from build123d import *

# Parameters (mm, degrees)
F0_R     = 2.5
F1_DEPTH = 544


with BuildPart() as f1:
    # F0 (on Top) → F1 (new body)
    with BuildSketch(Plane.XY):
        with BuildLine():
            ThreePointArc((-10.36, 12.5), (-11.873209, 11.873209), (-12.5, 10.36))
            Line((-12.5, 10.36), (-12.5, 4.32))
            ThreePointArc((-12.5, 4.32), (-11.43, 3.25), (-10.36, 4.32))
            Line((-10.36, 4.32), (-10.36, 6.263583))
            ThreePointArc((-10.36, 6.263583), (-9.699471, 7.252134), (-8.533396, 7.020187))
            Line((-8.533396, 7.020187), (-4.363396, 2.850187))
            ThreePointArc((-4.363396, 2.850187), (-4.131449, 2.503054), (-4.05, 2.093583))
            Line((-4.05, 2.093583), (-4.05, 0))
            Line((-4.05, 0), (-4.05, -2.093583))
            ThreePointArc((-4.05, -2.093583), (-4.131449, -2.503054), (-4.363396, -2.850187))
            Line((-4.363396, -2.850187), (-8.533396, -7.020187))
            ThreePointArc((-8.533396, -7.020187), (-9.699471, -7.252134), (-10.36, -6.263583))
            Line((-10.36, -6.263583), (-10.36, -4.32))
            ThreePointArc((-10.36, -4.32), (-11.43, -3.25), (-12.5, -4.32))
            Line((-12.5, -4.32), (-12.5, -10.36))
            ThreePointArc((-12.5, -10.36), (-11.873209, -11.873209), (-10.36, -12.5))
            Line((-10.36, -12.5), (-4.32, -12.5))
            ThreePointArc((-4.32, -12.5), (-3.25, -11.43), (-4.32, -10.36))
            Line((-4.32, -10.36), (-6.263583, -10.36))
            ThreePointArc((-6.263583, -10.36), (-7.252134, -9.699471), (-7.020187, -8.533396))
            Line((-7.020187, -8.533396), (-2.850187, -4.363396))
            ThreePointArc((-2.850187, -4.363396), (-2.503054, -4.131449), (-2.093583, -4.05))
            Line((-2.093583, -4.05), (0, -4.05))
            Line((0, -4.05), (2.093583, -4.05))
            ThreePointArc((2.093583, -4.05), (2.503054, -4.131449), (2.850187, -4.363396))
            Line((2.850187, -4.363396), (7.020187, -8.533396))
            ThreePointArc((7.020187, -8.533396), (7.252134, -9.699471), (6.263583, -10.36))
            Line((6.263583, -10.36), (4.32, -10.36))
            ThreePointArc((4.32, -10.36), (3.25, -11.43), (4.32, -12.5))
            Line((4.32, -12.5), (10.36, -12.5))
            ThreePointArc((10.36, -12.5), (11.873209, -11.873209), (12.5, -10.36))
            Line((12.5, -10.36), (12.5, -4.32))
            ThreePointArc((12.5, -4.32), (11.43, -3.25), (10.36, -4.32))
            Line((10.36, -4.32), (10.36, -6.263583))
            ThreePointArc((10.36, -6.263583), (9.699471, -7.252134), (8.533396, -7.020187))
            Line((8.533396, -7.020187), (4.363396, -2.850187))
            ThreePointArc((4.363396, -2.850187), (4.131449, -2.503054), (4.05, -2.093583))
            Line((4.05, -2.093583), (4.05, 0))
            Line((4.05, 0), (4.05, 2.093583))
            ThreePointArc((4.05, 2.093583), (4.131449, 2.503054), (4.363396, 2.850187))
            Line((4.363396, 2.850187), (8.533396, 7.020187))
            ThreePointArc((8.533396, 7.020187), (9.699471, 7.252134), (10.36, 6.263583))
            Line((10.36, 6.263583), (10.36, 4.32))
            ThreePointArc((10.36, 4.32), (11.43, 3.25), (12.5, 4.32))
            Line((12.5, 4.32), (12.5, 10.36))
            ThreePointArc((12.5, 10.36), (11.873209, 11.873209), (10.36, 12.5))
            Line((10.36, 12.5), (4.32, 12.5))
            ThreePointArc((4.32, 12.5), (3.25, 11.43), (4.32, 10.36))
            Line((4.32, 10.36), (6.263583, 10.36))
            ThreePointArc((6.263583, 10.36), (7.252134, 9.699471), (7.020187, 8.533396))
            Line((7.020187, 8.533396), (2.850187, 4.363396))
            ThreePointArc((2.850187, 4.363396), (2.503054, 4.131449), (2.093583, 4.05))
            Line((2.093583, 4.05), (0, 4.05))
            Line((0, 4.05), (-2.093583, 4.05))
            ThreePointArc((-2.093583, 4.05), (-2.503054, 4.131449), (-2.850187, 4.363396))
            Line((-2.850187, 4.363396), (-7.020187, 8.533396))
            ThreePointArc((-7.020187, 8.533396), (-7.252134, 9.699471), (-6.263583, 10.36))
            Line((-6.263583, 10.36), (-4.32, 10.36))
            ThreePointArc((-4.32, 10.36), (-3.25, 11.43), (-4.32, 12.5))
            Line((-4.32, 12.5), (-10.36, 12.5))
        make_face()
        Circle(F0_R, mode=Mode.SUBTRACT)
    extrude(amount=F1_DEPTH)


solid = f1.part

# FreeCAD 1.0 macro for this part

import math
import FreeCAD as App
import Part
import Sketcher
Q = App.Units.Quantity

doc = App.newDocument("Part")
params = doc.addObject("Spreadsheet::Sheet", "Params")
for row, (alias, value) in enumerate([
    ("sketch1_diameter", "5 mm"),
    ("sketch1_radius", "2.139998 mm"),
    ("sketch1_width", "6.04 mm"),
    ("pad1_length", "544 mm"),
], start=1):
    params.set(f"A{row}", alias)
    params.set(f"B{row}", "=" + value)
    params.setAlias(f"B{row}", alias)

body = doc.addObject("PartDesign::Body", "Body")

# Sketch on XY plane
sketch1 = body.newObject("Sketcher::SketchObject", "Sketch")
sketch1.AttachmentSupport = (doc.getObject("XY_Plane"), [""])
sketch1.MapMode = "FlatFace"
sketch1.addGeometry(Part.ArcOfCircle(Part.Circle(App.Vector(-10.4, 10.4, 0), App.Vector(0, 0, 1), 2.1), math.radians(90), math.radians(180)), False)
sketch1.addGeometry(Part.LineSegment(App.Vector(-12.5, 10.4, 0), App.Vector(-12.5, 4.3, 0)), False)
sketch1.addGeometry(Part.ArcOfCircle(Part.Circle(App.Vector(-11.4, 4.3, 0), App.Vector(0, 0, 1), 1.1), math.radians(180), math.radians(360)), False)
sketch1.addGeometry(Part.LineSegment(App.Vector(-10.4, 4.3, 0), App.Vector(-10.4, 6.3, 0)), False)
sketch1.addGeometry(Part.ArcOfCircle(Part.Circle(App.Vector(-9.3, 6.3, 0), App.Vector(0, 0, 1), 1.1), math.radians(45), math.radians(180)), False)
sketch1.addGeometry(Part.LineSegment(App.Vector(-8.5, 7, 0), App.Vector(-4.4, 2.9, 0)), False)
sketch1.addGeometry(Part.ArcOfCircle(Part.Circle(App.Vector(-5.1, 2.1, 0), App.Vector(0, 0, 1), 1.1), math.radians(0), math.radians(45)), False)
sketch1.addGeometry(Part.LineSegment(App.Vector(-4, 2.1, 0), App.Vector(-4, -2.1, 0)), False)
sketch1.addGeometry(Part.ArcOfCircle(Part.Circle(App.Vector(-5.1, -2.1, 0), App.Vector(0, 0, 1), 1.1), math.radians(-45), math.radians(0)), False)
sketch1.addGeometry(Part.LineSegment(App.Vector(-4.4, -2.9, 0), App.Vector(-8.5, -7, 0)), False)
sketch1.addGeometry(Part.ArcOfCircle(Part.Circle(App.Vector(-9.3, -6.3, 0), App.Vector(0, 0, 1), 1.1), math.radians(-180), math.radians(-45)), False)
sketch1.addGeometry(Part.LineSegment(App.Vector(-10.4, -6.3, 0), App.Vector(-10.4, -4.3, 0)), False)
sketch1.addGeometry(Part.ArcOfCircle(Part.Circle(App.Vector(-11.4, -4.3, 0), App.Vector(0, 0, 1), 1.1), math.radians(0), math.radians(180)), False)
sketch1.addGeometry(Part.LineSegment(App.Vector(-12.5, -4.3, 0), App.Vector(-12.5, -10.4, 0)), False)
sketch1.addGeometry(Part.ArcOfCircle(Part.Circle(App.Vector(-10.4, -10.4, 0), App.Vector(0, 0, 1), 2.1), math.radians(180), math.radians(270)), False)
sketch1.addGeometry(Part.LineSegment(App.Vector(-10.4, -12.5, 0), App.Vector(-4.3, -12.5, 0)), False)
sketch1.addGeometry(Part.ArcOfCircle(Part.Circle(App.Vector(-4.3, -11.4, 0), App.Vector(0, 0, 1), 1.1), math.radians(-90), math.radians(90)), False)
sketch1.addGeometry(Part.LineSegment(App.Vector(-4.3, -10.4, 0), App.Vector(-6.3, -10.4, 0)), False)
sketch1.addGeometry(Part.ArcOfCircle(Part.Circle(App.Vector(-6.3, -9.3, 0), App.Vector(0, 0, 1), 1.1), math.radians(135), math.radians(270)), False)
sketch1.addGeometry(Part.LineSegment(App.Vector(-7, -8.5, 0), App.Vector(-2.9, -4.4, 0)), False)
sketch1.addGeometry(Part.ArcOfCircle(Part.Circle(App.Vector(-2.1, -5.1, 0), App.Vector(0, 0, 1), 1.1), math.radians(90), math.radians(135)), False)
sketch1.addGeometry(Part.LineSegment(App.Vector(-2.1, -4, 0), App.Vector(2.1, -4, 0)), False)
sketch1.addGeometry(Part.ArcOfCircle(Part.Circle(App.Vector(2.1, -5.1, 0), App.Vector(0, 0, 1), 1.1), math.radians(45), math.radians(90)), False)
sketch1.addGeometry(Part.LineSegment(App.Vector(2.9, -4.4, 0), App.Vector(7, -8.5, 0)), False)
sketch1.addGeometry(Part.ArcOfCircle(Part.Circle(App.Vector(6.3, -9.3, 0), App.Vector(0, 0, 1), 1.1), math.radians(-90), math.radians(45)), False)
sketch1.addGeometry(Part.LineSegment(App.Vector(6.3, -10.4, 0), App.Vector(4.3, -10.4, 0)), False)
sketch1.addGeometry(Part.ArcOfCircle(Part.Circle(App.Vector(4.3, -11.4, 0), App.Vector(0, 0, 1), 1.1), math.radians(90), math.radians(270)), False)
sketch1.addGeometry(Part.LineSegment(App.Vector(4.3, -12.5, 0), App.Vector(10.4, -12.5, 0)), False)
sketch1.addGeometry(Part.ArcOfCircle(Part.Circle(App.Vector(10.4, -10.4, 0), App.Vector(0, 0, 1), 2.1), math.radians(-90), math.radians(0)), False)
sketch1.addGeometry(Part.LineSegment(App.Vector(12.5, -10.4, 0), App.Vector(12.5, -4.3, 0)), False)
sketch1.addGeometry(Part.ArcOfCircle(Part.Circle(App.Vector(11.4, -4.3, 0), App.Vector(0, 0, 1), 1.1), math.radians(0), math.radians(180)), False)
sketch1.addGeometry(Part.LineSegment(App.Vector(10.4, -4.3, 0), App.Vector(10.4, -6.3, 0)), False)
sketch1.addGeometry(Part.ArcOfCircle(Part.Circle(App.Vector(9.3, -6.3, 0), App.Vector(0, 0, 1), 1.1), math.radians(-135), math.radians(0)), False)
sketch1.addGeometry(Part.LineSegment(App.Vector(8.5, -7, 0), App.Vector(4.4, -2.9, 0)), False)
sketch1.addGeometry(Part.ArcOfCircle(Part.Circle(App.Vector(5.1, -2.1, 0), App.Vector(0, 0, 1), 1.1), math.radians(-180), math.radians(-135)), False)
sketch1.addGeometry(Part.LineSegment(App.Vector(4, -2.1, 0), App.Vector(4, 2.1, 0)), False)
sketch1.addGeometry(Part.ArcOfCircle(Part.Circle(App.Vector(5.1, 2.1, 0), App.Vector(0, 0, 1), 1.1), math.radians(135), math.radians(180)), False)
sketch1.addGeometry(Part.LineSegment(App.Vector(4.4, 2.9, 0), App.Vector(8.5, 7, 0)), False)
sketch1.addGeometry(Part.ArcOfCircle(Part.Circle(App.Vector(9.3, 6.3, 0), App.Vector(0, 0, 1), 1.1), math.radians(0), math.radians(135)), False)
sketch1.addGeometry(Part.LineSegment(App.Vector(10.4, 6.3, 0), App.Vector(10.4, 4.3, 0)), False)
sketch1.addGeometry(Part.ArcOfCircle(Part.Circle(App.Vector(11.4, 4.3, 0), App.Vector(0, 0, 1), 1.1), math.radians(180), math.radians(360)), False)
sketch1.addGeometry(Part.LineSegment(App.Vector(12.5, 4.3, 0), App.Vector(12.5, 10.4, 0)), False)
sketch1.addGeometry(Part.ArcOfCircle(Part.Circle(App.Vector(10.4, 10.4, 0), App.Vector(0, 0, 1), 2.1), math.radians(0), math.radians(90)), False)
sketch1.addGeometry(Part.LineSegment(App.Vector(10.4, 12.5, 0), App.Vector(4.3, 12.5, 0)), False)
sketch1.addGeometry(Part.ArcOfCircle(Part.Circle(App.Vector(4.3, 11.4, 0), App.Vector(0, 0, 1), 1.1), math.radians(90), math.radians(270)), False)
sketch1.addGeometry(Part.LineSegment(App.Vector(4.3, 10.4, 0), App.Vector(6.3, 10.4, 0)), False)
sketch1.addGeometry(Part.ArcOfCircle(Part.Circle(App.Vector(6.3, 9.3, 0), App.Vector(0, 0, 1), 1.1), math.radians(-45), math.radians(90)), False)
sketch1.addGeometry(Part.LineSegment(App.Vector(7, 8.5, 0), App.Vector(2.9, 4.4, 0)), False)
sketch1.addGeometry(Part.ArcOfCircle(Part.Circle(App.Vector(2.1, 5.1, 0), App.Vector(0, 0, 1), 1.1), math.radians(-90), math.radians(-45)), False)
sketch1.addGeometry(Part.LineSegment(App.Vector(2.1, 4, 0), App.Vector(-2.1, 4, 0)), False)
sketch1.addGeometry(Part.ArcOfCircle(Part.Circle(App.Vector(-2.1, 5.1, 0), App.Vector(0, 0, 1), 1.1), math.radians(-135), math.radians(-90)), False)
sketch1.addGeometry(Part.LineSegment(App.Vector(-2.9, 4.4, 0), App.Vector(-7, 8.5, 0)), False)
sketch1.addGeometry(Part.ArcOfCircle(Part.Circle(App.Vector(-6.3, 9.3, 0), App.Vector(0, 0, 1), 1.1), math.radians(90), math.radians(225)), False)
sketch1.addGeometry(Part.LineSegment(App.Vector(-6.3, 10.4, 0), App.Vector(-4.3, 10.4, 0)), False)
sketch1.addGeometry(Part.ArcOfCircle(Part.Circle(App.Vector(-4.3, 11.4, 0), App.Vector(0, 0, 1), 1.1), math.radians(-90), math.radians(90)), False)
sketch1.addGeometry(Part.LineSegment(App.Vector(-4.3, 12.5, 0), App.Vector(-10.4, 12.5, 0)), False)
sketch1.addGeometry(Part.Circle(App.Vector(0, 0, 0), App.Vector(0, 0, 1), 2.5), False)
sketch1.addConstraint(Sketcher.Constraint("Tangent", 0, 2, 1, 1))
sketch1.addConstraint(Sketcher.Constraint("Tangent", 1, 2, 2, 1))
sketch1.addConstraint(Sketcher.Constraint("Tangent", 2, 2, 3, 1))
sketch1.addConstraint(Sketcher.Constraint("Tangent", 3, 2, 4, 2))
sketch1.addConstraint(Sketcher.Constraint("Tangent", 4, 1, 5, 1))
sketch1.addConstraint(Sketcher.Constraint("Tangent", 5, 2, 6, 2))
sketch1.addConstraint(Sketcher.Constraint("Tangent", 6, 1, 7, 1))
sketch1.addConstraint(Sketcher.Constraint("Tangent", 7, 2, 8, 2))
sketch1.addConstraint(Sketcher.Constraint("Tangent", 8, 1, 9, 1))
sketch1.addConstraint(Sketcher.Constraint("Tangent", 9, 2, 10, 2))
sketch1.addConstraint(Sketcher.Constraint("Tangent", 10, 1, 11, 1))
sketch1.addConstraint(Sketcher.Constraint("Tangent", 11, 2, 12, 1))
sketch1.addConstraint(Sketcher.Constraint("Tangent", 12, 2, 13, 1))
sketch1.addConstraint(Sketcher.Constraint("Tangent", 13, 2, 14, 1))
sketch1.addConstraint(Sketcher.Constraint("Tangent", 14, 2, 15, 1))
sketch1.addConstraint(Sketcher.Constraint("Tangent", 15, 2, 16, 1))
sketch1.addConstraint(Sketcher.Constraint("Tangent", 16, 2, 17, 1))
sketch1.addConstraint(Sketcher.Constraint("Tangent", 17, 2, 18, 2))
sketch1.addConstraint(Sketcher.Constraint("Tangent", 18, 1, 19, 1))
sketch1.addConstraint(Sketcher.Constraint("Tangent", 19, 2, 20, 2))
sketch1.addConstraint(Sketcher.Constraint("Tangent", 20, 1, 21, 1))
sketch1.addConstraint(Sketcher.Constraint("Tangent", 21, 2, 22, 2))
sketch1.addConstraint(Sketcher.Constraint("Tangent", 22, 1, 23, 1))
sketch1.addConstraint(Sketcher.Constraint("Tangent", 23, 2, 24, 2))
sketch1.addConstraint(Sketcher.Constraint("Tangent", 24, 1, 25, 1))
sketch1.addConstraint(Sketcher.Constraint("Tangent", 25, 2, 26, 1))
sketch1.addConstraint(Sketcher.Constraint("Tangent", 26, 2, 27, 1))
sketch1.addConstraint(Sketcher.Constraint("Tangent", 27, 2, 28, 1))
sketch1.addConstraint(Sketcher.Constraint("Tangent", 28, 2, 29, 1))
sketch1.addConstraint(Sketcher.Constraint("Tangent", 29, 2, 30, 1))
sketch1.addConstraint(Sketcher.Constraint("Tangent", 30, 2, 31, 1))
sketch1.addConstraint(Sketcher.Constraint("Tangent", 31, 2, 32, 2))
sketch1.addConstraint(Sketcher.Constraint("Tangent", 32, 1, 33, 1))
sketch1.addConstraint(Sketcher.Constraint("Tangent", 33, 2, 34, 2))
sketch1.addConstraint(Sketcher.Constraint("Tangent", 34, 1, 35, 1))
sketch1.addConstraint(Sketcher.Constraint("Tangent", 35, 2, 36, 2))
sketch1.addConstraint(Sketcher.Constraint("Tangent", 36, 1, 37, 1))
sketch1.addConstraint(Sketcher.Constraint("Tangent", 37, 2, 38, 2))
sketch1.addConstraint(Sketcher.Constraint("Tangent", 38, 1, 39, 1))
sketch1.addConstraint(Sketcher.Constraint("Tangent", 39, 2, 40, 1))
sketch1.addConstraint(Sketcher.Constraint("Tangent", 40, 2, 41, 1))
sketch1.addConstraint(Sketcher.Constraint("Tangent", 41, 2, 42, 1))
sketch1.addConstraint(Sketcher.Constraint("Tangent", 42, 2, 43, 1))
sketch1.addConstraint(Sketcher.Constraint("Tangent", 43, 2, 44, 1))
sketch1.addConstraint(Sketcher.Constraint("Tangent", 44, 2, 45, 1))
sketch1.addConstraint(Sketcher.Constraint("Tangent", 45, 2, 46, 2))
sketch1.addConstraint(Sketcher.Constraint("Tangent", 46, 1, 47, 1))
sketch1.addConstraint(Sketcher.Constraint("Tangent", 47, 2, 48, 2))
sketch1.addConstraint(Sketcher.Constraint("Tangent", 48, 1, 49, 1))
sketch1.addConstraint(Sketcher.Constraint("Tangent", 49, 2, 50, 2))
sketch1.addConstraint(Sketcher.Constraint("Tangent", 50, 1, 51, 1))
sketch1.addConstraint(Sketcher.Constraint("Tangent", 51, 2, 52, 2))
sketch1.addConstraint(Sketcher.Constraint("Tangent", 52, 1, 53, 1))
sketch1.addConstraint(Sketcher.Constraint("Tangent", 53, 2, 54, 1))
sketch1.addConstraint(Sketcher.Constraint("Tangent", 54, 2, 55, 1))
sketch1.addConstraint(Sketcher.Constraint("Tangent", 55, 2, 0, 1))
sketch1.addConstraint(Sketcher.Constraint("Vertical", 1))
sketch1.addConstraint(Sketcher.Constraint("Vertical", 3))
sketch1.addConstraint(Sketcher.Constraint("Vertical", 7))
sketch1.addConstraint(Sketcher.Constraint("Vertical", 11))
sketch1.addConstraint(Sketcher.Constraint("Vertical", 13))
sketch1.addConstraint(Sketcher.Constraint("Horizontal", 15))
sketch1.addConstraint(Sketcher.Constraint("Horizontal", 17))
sketch1.addConstraint(Sketcher.Constraint("Horizontal", 21))
sketch1.addConstraint(Sketcher.Constraint("Horizontal", 25))
sketch1.addConstraint(Sketcher.Constraint("Horizontal", 27))
sketch1.addConstraint(Sketcher.Constraint("Vertical", 29))
sketch1.addConstraint(Sketcher.Constraint("Vertical", 31))
sketch1.addConstraint(Sketcher.Constraint("Vertical", 35))
sketch1.addConstraint(Sketcher.Constraint("Vertical", 39))
sketch1.addConstraint(Sketcher.Constraint("Vertical", 41))
sketch1.addConstraint(Sketcher.Constraint("Horizontal", 43))
sketch1.addConstraint(Sketcher.Constraint("Horizontal", 45))
sketch1.addConstraint(Sketcher.Constraint("Horizontal", 49))
sketch1.addConstraint(Sketcher.Constraint("Horizontal", 53))
sketch1.addConstraint(Sketcher.Constraint("Horizontal", 55))
sketch1.addConstraint(Sketcher.Constraint("Coincident", 56, 3, -1, 1))
sketch1.addConstraint(Sketcher.Constraint("Equal", 2, 4))
sketch1.addConstraint(Sketcher.Constraint("Equal", 4, 6))
sketch1.addConstraint(Sketcher.Constraint("Equal", 6, 8))
sketch1.addConstraint(Sketcher.Constraint("Equal", 8, 10))
sketch1.addConstraint(Sketcher.Constraint("Equal", 10, 12))
sketch1.addConstraint(Sketcher.Constraint("Equal", 0, 14))
sketch1.addConstraint(Sketcher.Constraint("Equal", 12, 16))
sketch1.addConstraint(Sketcher.Constraint("Equal", 16, 18))
sketch1.addConstraint(Sketcher.Constraint("Equal", 18, 20))
sketch1.addConstraint(Sketcher.Constraint("Equal", 20, 22))
sketch1.addConstraint(Sketcher.Constraint("Equal", 22, 24))
sketch1.addConstraint(Sketcher.Constraint("Equal", 24, 26))
sketch1.addConstraint(Sketcher.Constraint("Equal", 14, 28))
sketch1.addConstraint(Sketcher.Constraint("Equal", 26, 30))
sketch1.addConstraint(Sketcher.Constraint("Equal", 30, 32))
sketch1.addConstraint(Sketcher.Constraint("Equal", 32, 34))
sketch1.addConstraint(Sketcher.Constraint("Equal", 34, 36))
sketch1.addConstraint(Sketcher.Constraint("Equal", 36, 38))
sketch1.addConstraint(Sketcher.Constraint("Equal", 38, 40))
sketch1.addConstraint(Sketcher.Constraint("Equal", 28, 42))
sketch1.addConstraint(Sketcher.Constraint("Equal", 40, 44))
sketch1.addConstraint(Sketcher.Constraint("Equal", 44, 46))
sketch1.addConstraint(Sketcher.Constraint("Equal", 46, 48))
sketch1.addConstraint(Sketcher.Constraint("Equal", 48, 50))
sketch1.addConstraint(Sketcher.Constraint("Equal", 50, 52))
sketch1.addConstraint(Sketcher.Constraint("Equal", 52, 54))
sketch1.addConstraint(Sketcher.Constraint("Symmetric", 0, 3, 28, 3, -1, 1))
sketch1.addConstraint(Sketcher.Constraint("Symmetric", 6, 3, 34, 3, -1, 1))
sketch1.addConstraint(Sketcher.Constraint("Symmetric", 10, 3, 38, 3, -1, 1))
sketch1.addConstraint(Sketcher.Constraint("Symmetric", 16, 3, 44, 3, -1, 1))
sketch1.addConstraint(Sketcher.Constraint("Symmetric", 20, 3, 48, 3, -1, 1))
sketch1.addConstraint(Sketcher.Constraint("Symmetric", 22, 1, 50, 1, -1, 1))
sketch1.addConstraint(Sketcher.Constraint("Symmetric", 18, 3, 24, 3, -2))
sketch1.addConstraint(Sketcher.Constraint("Symmetric", 12, 3, 30, 3, -2))
sketch1.addConstraint(Sketcher.Constraint("Symmetric", 9, 2, 32, 1, -2))
sketch1.addConstraint(Sketcher.Constraint("Symmetric", 5, 2, 36, 1, -2))
sketch1.addConstraint(Sketcher.Constraint("Symmetric", 47, 2, 50, 1, -2))
sketch1.addConstraint(Sketcher.Constraint("Perpendicular", 5, 9))
sketch1.addConstraint(Sketcher.Constraint("Parallel", 9, 19))
sketch1.addConstraint(Sketcher.Constraint("Horizontal", 2, 3, 40, 3))
sketch1.addConstraint(Sketcher.Constraint("Horizontal", 13, 2, 16, 2))
sketch1.addConstraint(Sketcher.Constraint("Vertical", 26, 3, 44, 3))
sketch1.addConstraint(Sketcher.Constraint("Vertical", 16, 3, 54, 3))
sketch1.addConstraint(Sketcher.Constraint("Equal", 55, 1))
sketch1.addConstraint(Sketcher.Constraint("Equal", 53, 3))
sketch1.addConstraint(Sketcher.Constraint("Equal", 49, 7))
sketch1.addConstraint(Sketcher.Constraint("Equal", 3, 11))
sketch1.addConstraint(Sketcher.Constraint("Equal", 9, 19))
sketch1.addConstraint(Sketcher.Constraint("Diameter", 56, Q("5 mm")))
sketch1.addConstraint(Sketcher.Constraint("Radius", 0, Q("2.139998 mm")))
sketch1.addConstraint(Sketcher.Constraint("DistanceX", 15, 1, 15, 2, Q("6.04 mm")))
sketch1.addConstraint(Sketcher.Constraint("DistanceX", 0, 2, -1, 1, Q("12.5 mm")))
sketch1.addConstraint(Sketcher.Constraint("DistanceX", 6, 3, -1, 1, Q("5.12 mm")))
sketch1.addConstraint(Sketcher.Constraint("DistanceX", 17, 2, 17, 1, Q("1.943583 mm")))
sketch1.setExpression("Constraints[125]", "Params.sketch1_diameter")
sketch1.setExpression("Constraints[126]", "Params.sketch1_radius")
sketch1.setExpression("Constraints[127]", "Params.sketch1_width")
pad1 = body.newObject("PartDesign::Pad", "Pad")
pad1.Profile = sketch1
pad1.setExpression("Length", "Params.pad1_length")

doc.recompute()
